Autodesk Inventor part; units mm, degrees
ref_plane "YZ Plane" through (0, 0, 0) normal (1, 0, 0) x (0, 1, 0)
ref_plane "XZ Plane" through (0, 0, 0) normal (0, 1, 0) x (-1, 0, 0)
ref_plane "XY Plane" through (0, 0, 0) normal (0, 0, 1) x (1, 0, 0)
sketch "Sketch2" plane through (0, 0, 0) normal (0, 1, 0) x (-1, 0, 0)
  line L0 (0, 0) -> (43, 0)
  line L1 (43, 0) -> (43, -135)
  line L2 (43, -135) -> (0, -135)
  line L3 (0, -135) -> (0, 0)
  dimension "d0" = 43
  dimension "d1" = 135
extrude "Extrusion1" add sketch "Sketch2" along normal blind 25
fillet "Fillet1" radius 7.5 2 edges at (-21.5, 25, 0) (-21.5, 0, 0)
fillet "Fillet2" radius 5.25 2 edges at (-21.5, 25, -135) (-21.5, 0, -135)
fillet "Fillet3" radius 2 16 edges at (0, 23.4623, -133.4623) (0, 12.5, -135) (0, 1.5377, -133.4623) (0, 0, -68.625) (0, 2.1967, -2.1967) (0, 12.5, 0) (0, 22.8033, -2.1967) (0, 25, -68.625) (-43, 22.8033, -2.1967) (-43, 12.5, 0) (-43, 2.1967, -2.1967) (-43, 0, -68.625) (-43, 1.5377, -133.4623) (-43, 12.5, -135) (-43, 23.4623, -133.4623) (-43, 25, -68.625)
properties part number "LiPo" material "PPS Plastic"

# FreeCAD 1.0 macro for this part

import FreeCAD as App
import Part
import Sketcher
Q = App.Units.Quantity


def edges_at(feature, points):
    """Names of the edges that pass closest to the given points."""
    edges = feature.Shape.Edges
    near = lambda p: min(range(len(edges)), key=lambda i: edges[i].distToShape(Part.Vertex(*p))[0])
    return sorted({f"Edge{near(p) + 1}" for p in points})

doc = App.newDocument("Part")
body = doc.addObject("PartDesign::Body", "Body")

# Sketch on XZ plane
sketch1 = body.newObject("Sketcher::SketchObject", "Sketch")
sketch1.AttachmentSupport = (doc.getObject("XZ_Plane"), [""])
sketch1.MapMode = "FlatFace"
sketch1.addGeometry([
    Part.LineSegment(App.Vector(-43, 0, 0), App.Vector(0, 0, 0)),
    Part.LineSegment(App.Vector(0, 0, 0), App.Vector(0, -135, 0)),
    Part.LineSegment(App.Vector(0, -135, 0), App.Vector(-43, -135, 0)),
    Part.LineSegment(App.Vector(-43, -135, 0), App.Vector(-43, 0, 0)),
], False)
sketch1.addConstraint([
    Sketcher.Constraint("Coincident", 0, 2, 1, 1),
    Sketcher.Constraint("Coincident", 1, 2, 2, 1),
    Sketcher.Constraint("Coincident", 2, 2, 3, 1),
    Sketcher.Constraint("Coincident", 3, 2, 0, 1),
    Sketcher.Constraint("Horizontal", 0),
    Sketcher.Constraint("Vertical", 1),
    Sketcher.Constraint("Horizontal", 2),
    Sketcher.Constraint("Vertical", 3),
    Sketcher.Constraint("Coincident", 0, 2, -1, 1),
    Sketcher.Constraint("DistanceX", 0, 1, 0, 2, Q("43 mm")),
    Sketcher.Constraint("DistanceY", 1, 2, 1, 1, Q("135 mm")),
])
pad1 = body.newObject("PartDesign::Pad", "Pad")
pad1.Profile = sketch1
pad1.Length = 25
pad1.Reversed = True
doc.recompute()

fillet = body.newObject("PartDesign::Fillet", "Fillet")
fillet.Base = (pad1, edges_at(pad1, [(-21.5, 25, 0), (-21.5, 0, 0)]))
fillet.Radius = 7.5
doc.recompute()

fillet2 = body.newObject("PartDesign::Fillet", "Fillet001")
fillet2.Base = (fillet, edges_at(fillet, [(-21.5, 25, -135), (-21.5, 0, -135)]))
fillet2.Radius = 5.25
doc.recompute()

fillet3 = body.newObject("PartDesign::Fillet", "Fillet002")
fillet3.Base = (fillet2, edges_at(fillet2, [
    (0, 23.462, -133.462),
    (0, 12.5, -135),
    (0, 1.538, -133.462),
    (0, 0, -68.625),
    (0, 2.197, -2.197),
    (0, 12.5, 0),
    (0, 22.803, -2.197),
    (0, 25, -68.625),
    (-43, 22.803, -2.197),
    (-43, 12.5, 0),
    (-43, 2.197, -2.197),
    (-43, 0, -68.625),
    (-43, 1.538, -133.462),
    (-43, 12.5, -135),
    (-43, 23.462, -133.462),
    (-43, 25, -68.625),
]))
fillet3.Radius = 2

doc.recompute()
